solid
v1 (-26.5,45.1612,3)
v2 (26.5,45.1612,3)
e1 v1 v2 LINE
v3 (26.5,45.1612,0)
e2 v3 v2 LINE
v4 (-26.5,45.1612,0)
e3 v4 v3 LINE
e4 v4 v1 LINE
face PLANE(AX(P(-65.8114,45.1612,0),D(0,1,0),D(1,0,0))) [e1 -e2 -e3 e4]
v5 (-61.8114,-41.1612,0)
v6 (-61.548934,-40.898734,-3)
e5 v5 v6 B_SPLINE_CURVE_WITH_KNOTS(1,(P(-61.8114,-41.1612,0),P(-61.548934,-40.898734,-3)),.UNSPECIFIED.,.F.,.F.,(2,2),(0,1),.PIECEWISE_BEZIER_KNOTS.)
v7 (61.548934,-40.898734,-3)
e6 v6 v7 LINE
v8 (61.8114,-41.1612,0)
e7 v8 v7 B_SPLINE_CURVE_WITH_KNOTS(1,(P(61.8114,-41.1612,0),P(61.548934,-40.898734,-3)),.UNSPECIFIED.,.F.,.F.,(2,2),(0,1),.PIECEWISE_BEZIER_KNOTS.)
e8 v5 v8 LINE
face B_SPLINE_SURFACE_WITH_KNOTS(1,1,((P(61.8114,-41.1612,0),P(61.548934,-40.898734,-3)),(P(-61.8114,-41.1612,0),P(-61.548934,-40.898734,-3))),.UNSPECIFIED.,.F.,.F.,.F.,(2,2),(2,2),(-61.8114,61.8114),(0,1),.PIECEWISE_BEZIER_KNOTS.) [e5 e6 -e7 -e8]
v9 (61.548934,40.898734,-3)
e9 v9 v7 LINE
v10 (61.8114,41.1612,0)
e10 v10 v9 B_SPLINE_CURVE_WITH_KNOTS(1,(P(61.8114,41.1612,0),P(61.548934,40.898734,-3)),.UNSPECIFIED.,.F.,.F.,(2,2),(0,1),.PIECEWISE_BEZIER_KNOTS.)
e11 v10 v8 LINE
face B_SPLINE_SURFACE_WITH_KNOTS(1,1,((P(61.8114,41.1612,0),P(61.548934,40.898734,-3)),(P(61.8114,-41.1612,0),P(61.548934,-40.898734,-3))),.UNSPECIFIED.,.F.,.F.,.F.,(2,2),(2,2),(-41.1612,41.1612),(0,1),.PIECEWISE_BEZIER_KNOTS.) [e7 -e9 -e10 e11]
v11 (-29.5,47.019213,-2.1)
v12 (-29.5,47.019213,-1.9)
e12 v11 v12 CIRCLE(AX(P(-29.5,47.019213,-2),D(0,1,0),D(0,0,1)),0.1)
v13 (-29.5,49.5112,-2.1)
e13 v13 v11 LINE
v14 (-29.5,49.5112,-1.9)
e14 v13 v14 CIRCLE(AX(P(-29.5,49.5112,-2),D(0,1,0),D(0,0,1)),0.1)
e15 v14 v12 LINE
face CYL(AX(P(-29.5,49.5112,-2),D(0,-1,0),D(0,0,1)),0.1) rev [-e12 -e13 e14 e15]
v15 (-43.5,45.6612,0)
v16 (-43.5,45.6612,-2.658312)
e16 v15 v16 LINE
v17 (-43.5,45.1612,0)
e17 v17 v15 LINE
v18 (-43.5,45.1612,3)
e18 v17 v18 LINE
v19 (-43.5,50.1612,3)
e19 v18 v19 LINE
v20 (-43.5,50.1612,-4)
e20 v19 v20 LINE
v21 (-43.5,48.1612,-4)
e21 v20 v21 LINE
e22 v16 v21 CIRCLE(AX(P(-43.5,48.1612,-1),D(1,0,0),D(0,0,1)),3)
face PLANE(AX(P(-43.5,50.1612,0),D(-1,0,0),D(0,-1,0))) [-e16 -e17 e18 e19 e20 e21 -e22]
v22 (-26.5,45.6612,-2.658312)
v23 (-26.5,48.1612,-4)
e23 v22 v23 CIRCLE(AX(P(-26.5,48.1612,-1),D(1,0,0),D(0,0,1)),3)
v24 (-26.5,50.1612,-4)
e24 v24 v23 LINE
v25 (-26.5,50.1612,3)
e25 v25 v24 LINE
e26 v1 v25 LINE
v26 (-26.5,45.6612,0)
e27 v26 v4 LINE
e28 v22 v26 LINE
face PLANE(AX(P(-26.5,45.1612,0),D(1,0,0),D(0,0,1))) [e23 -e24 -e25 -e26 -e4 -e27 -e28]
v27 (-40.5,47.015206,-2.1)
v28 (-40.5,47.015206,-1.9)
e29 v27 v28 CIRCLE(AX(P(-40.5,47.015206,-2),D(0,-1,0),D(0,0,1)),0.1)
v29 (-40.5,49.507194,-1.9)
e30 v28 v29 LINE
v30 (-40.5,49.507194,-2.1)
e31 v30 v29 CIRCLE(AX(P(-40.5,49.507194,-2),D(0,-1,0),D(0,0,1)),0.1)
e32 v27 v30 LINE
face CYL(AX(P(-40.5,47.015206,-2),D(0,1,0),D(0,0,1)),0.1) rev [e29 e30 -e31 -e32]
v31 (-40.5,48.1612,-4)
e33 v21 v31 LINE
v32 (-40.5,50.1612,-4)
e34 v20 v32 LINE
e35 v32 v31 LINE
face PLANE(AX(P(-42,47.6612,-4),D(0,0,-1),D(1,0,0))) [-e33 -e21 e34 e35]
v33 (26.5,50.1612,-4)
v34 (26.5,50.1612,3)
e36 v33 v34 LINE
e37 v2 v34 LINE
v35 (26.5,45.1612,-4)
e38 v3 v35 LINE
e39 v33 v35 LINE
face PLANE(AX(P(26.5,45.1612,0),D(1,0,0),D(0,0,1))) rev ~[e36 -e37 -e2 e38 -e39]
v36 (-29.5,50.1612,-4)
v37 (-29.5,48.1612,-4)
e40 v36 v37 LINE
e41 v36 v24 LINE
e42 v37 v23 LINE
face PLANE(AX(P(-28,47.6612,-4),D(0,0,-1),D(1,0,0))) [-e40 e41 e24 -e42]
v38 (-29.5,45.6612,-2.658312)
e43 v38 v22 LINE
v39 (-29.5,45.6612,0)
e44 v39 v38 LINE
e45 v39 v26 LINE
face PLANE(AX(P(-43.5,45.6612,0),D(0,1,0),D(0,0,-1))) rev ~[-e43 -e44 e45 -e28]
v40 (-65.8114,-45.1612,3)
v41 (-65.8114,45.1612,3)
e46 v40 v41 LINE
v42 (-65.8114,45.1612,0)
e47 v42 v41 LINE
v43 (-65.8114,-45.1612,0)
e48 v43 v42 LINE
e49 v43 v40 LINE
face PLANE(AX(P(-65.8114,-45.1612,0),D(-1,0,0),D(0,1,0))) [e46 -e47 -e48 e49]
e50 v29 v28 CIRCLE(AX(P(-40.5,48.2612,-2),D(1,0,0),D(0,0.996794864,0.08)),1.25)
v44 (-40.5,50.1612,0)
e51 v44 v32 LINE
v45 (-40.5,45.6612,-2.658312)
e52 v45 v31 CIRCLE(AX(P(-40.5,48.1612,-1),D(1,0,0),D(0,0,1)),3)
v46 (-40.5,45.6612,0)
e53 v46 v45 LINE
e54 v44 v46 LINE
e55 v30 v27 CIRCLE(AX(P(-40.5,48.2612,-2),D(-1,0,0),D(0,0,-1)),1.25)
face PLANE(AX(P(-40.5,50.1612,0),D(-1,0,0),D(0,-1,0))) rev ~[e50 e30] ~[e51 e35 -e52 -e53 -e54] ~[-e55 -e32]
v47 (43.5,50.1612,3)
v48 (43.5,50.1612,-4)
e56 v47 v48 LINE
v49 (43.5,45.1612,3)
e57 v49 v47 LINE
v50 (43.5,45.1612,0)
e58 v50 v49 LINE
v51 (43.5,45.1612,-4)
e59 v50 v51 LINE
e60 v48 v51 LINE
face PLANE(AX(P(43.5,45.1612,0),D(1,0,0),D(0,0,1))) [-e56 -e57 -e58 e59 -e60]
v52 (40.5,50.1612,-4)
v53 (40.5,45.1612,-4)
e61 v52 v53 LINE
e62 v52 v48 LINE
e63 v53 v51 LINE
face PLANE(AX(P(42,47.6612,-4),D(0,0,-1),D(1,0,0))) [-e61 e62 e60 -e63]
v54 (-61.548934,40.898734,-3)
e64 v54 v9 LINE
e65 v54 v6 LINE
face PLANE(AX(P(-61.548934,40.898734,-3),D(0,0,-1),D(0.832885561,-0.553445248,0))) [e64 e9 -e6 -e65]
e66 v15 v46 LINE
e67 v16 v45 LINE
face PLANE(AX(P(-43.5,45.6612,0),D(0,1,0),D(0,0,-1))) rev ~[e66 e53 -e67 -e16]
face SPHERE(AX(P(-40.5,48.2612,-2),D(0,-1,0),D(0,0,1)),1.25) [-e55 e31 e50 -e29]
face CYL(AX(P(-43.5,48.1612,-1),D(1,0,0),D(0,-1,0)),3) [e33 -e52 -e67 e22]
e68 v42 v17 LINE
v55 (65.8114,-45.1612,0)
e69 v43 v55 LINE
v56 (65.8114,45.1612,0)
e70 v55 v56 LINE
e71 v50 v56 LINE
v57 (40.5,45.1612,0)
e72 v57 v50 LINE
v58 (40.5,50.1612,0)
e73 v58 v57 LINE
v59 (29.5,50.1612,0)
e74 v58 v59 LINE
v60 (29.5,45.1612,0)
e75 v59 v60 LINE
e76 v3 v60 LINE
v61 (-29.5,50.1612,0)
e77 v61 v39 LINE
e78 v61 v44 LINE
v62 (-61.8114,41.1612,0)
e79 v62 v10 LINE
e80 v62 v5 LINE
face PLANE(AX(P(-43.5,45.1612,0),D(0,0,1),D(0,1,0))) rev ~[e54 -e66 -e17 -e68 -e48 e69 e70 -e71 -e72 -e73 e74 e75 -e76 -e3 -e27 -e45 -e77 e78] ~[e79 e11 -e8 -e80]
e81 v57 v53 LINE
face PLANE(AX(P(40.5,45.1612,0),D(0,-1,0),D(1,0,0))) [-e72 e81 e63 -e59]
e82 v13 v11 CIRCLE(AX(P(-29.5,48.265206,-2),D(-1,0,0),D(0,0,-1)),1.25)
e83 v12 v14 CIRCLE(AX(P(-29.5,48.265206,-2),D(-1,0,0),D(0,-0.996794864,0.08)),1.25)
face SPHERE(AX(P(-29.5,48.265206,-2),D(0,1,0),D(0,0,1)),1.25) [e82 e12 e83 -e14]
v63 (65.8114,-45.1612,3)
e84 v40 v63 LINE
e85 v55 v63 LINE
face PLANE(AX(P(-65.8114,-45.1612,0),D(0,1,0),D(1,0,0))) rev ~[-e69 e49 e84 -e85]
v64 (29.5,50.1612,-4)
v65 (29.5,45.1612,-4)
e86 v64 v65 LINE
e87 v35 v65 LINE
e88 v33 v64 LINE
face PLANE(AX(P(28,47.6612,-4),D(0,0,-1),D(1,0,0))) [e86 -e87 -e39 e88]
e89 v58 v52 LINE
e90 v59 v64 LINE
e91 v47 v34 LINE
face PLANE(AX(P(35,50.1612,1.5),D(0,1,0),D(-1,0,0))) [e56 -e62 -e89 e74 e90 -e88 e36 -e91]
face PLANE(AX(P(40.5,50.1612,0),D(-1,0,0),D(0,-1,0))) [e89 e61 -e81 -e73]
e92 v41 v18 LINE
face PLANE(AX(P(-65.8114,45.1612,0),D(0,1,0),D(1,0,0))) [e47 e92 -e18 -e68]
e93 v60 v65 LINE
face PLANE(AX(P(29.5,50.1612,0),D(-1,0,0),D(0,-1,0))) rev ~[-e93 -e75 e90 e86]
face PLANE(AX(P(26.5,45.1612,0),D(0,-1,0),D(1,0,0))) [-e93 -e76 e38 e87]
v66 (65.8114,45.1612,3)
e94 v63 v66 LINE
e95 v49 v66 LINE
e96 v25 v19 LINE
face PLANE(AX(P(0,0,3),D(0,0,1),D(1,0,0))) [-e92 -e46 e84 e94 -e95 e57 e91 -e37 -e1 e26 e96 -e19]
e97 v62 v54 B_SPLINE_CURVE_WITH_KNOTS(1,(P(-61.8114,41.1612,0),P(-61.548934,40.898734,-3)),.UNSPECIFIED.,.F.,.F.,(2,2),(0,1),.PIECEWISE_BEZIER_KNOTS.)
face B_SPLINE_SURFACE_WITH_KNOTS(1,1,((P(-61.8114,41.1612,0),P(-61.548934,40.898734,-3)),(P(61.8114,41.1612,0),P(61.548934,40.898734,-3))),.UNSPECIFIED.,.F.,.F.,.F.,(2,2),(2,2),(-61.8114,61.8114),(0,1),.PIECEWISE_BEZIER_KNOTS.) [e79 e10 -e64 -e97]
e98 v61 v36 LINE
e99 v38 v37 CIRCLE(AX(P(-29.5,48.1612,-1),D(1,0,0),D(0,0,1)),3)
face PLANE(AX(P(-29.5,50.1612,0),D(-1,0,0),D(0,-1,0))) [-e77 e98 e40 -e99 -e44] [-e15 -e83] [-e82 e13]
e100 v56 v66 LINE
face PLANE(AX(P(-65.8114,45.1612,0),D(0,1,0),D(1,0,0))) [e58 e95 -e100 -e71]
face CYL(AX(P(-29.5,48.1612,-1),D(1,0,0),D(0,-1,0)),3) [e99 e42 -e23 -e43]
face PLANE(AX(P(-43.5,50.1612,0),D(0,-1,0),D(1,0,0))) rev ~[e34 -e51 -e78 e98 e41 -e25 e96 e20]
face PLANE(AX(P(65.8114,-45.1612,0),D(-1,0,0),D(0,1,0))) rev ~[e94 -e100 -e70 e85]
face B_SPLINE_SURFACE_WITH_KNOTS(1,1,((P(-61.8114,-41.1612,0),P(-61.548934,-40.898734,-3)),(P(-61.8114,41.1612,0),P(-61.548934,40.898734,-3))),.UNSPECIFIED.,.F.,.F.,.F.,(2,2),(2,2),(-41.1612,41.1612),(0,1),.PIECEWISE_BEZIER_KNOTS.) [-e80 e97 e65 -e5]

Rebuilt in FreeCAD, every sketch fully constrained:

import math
import FreeCAD as App
import Part
import Sketcher

V = App.Vector


def edges_at(feature, points):
    """Names of the edges that pass closest to the given points."""
    edges = feature.Shape.Edges
    near = lambda p: min(range(len(edges)), key=lambda i: edges[i].distToShape(Part.Vertex(*p))[0])
    return sorted({f"Edge{near(p) + 1}" for p in points})

doc = App.newDocument("Part")
body = doc.addObject("PartDesign::Body", "Body")

sketch1 = body.newObject("Sketcher::SketchObject", "Sketch")
sketch1.AttachmentSupport = (doc.getObject("XY_Plane"), [""])
sketch1.MapMode = "FlatFace"
sketch1.addGeometry([
    Part.LineSegment(V(-66, 45, 0), V(-66, -45, 0)),
    Part.LineSegment(V(-66, -45, 0), V(66, -45, 0)),
    Part.LineSegment(V(66, -45, 0), V(66, 45, 0)),
    Part.LineSegment(V(66, 45, 0), V(-66, 45, 0)),
], False)
sketch1.addConstraint([
    Sketcher.Constraint("Coincident", 0, 2, 1, 1),
    Sketcher.Constraint("Coincident", 1, 2, 2, 1),
    Sketcher.Constraint("Coincident", 2, 2, 3, 1),
    Sketcher.Constraint("Coincident", 3, 2, 0, 1),
    Sketcher.Constraint("Vertical", 0),
    Sketcher.Constraint("Horizontal", 1),
    Sketcher.Constraint("Vertical", 2),
    Sketcher.Constraint("Horizontal", 3),
    Sketcher.Constraint("Symmetric", 0, 2, 2, 2, -1, 1),
    Sketcher.Constraint("DistanceX", 1, 1, 1, 2, 131.6228),
    Sketcher.Constraint("DistanceY", 0, 2, 0, 1, 90.3224),
])
pad1 = body.newObject("PartDesign::Pad", "Pad")
pad1.Profile = sketch1
pad1.Length = 3

sketch2 = body.newObject("Sketcher::SketchObject", "Sketch001")
sketch2.AttachmentSupport = (doc.getObject("XY_Plane"), [""])
sketch2.MapMode = "FlatFace"
sketch2.addGeometry([
    Part.LineSegment(V(-62, -41, 0), V(-62, 41, 0)),
    Part.LineSegment(V(-62, 41, 0), V(62, 41, 0)),
    Part.LineSegment(V(62, 41, 0), V(62, -41, 0)),
    Part.LineSegment(V(62, -41, 0), V(-62, -41, 0)),
], False)
sketch2.addConstraint([
    Sketcher.Constraint("Coincident", 0, 2, 1, 1),
    Sketcher.Constraint("Coincident", 1, 2, 2, 1),
    Sketcher.Constraint("Coincident", 2, 2, 3, 1),
    Sketcher.Constraint("Coincident", 3, 2, 0, 1),
    Sketcher.Constraint("Vertical", 0),
    Sketcher.Constraint("Horizontal", 1),
    Sketcher.Constraint("Vertical", 2),
    Sketcher.Constraint("Horizontal", 3),
    Sketcher.Constraint("Symmetric", 0, 2, 2, 2, -1, 1),
    Sketcher.Constraint("DistanceX", 1, 1, 1, 2, 123.6228),
    Sketcher.Constraint("DistanceY", 0, 1, 0, 2, 82.3224),
])
pad2 = body.newObject("PartDesign::Pad", "Pad001")
pad2.Profile = sketch2
pad2.Length = 3
pad2.Reversed = True
pad2.TaperAngle = -5

sketch3 = body.newObject("Sketcher::SketchObject", "Sketch002")
sketch3.AttachmentSupport = (doc.getObject("XZ_Plane"), [""])
sketch3.MapMode = "FlatFace"
sketch3.AttachmentOffset = App.Placement(V(0, 0, -45.1612), App.Rotation())
sketch3.addGeometry([
    Part.LineSegment(V(-26.5, 3, 0), V(-26.5, 0, 0)),
    Part.LineSegment(V(-26.5, 0, 0), V(-43.5, 0, 0)),
    Part.LineSegment(V(-43.5, 0, 0), V(-43.5, 3, 0)),
    Part.LineSegment(V(-43.5, 3, 0), V(-26.5, 3, 0)),
    Part.LineSegment(V(43.5, 3, 0), V(43.5, 0, 0)),
    Part.LineSegment(V(43.5, 0, 0), V(26.5, 0, 0)),
    Part.LineSegment(V(26.5, 0, 0), V(26.5, 3, 0)),
    Part.LineSegment(V(26.5, 3, 0), V(43.5, 3, 0)),
], False)
sketch3.addConstraint([
    Sketcher.Constraint("Coincident", 0, 2, 1, 1),
    Sketcher.Constraint("Coincident", 1, 2, 2, 1),
    Sketcher.Constraint("Coincident", 2, 2, 3, 1),
    Sketcher.Constraint("Coincident", 3, 2, 0, 1),
    Sketcher.Constraint("Coincident", 4, 2, 5, 1),
    Sketcher.Constraint("Coincident", 5, 2, 6, 1),
    Sketcher.Constraint("Coincident", 6, 2, 7, 1),
    Sketcher.Constraint("Coincident", 7, 2, 4, 1),
    Sketcher.Constraint("Vertical", 0),
    Sketcher.Constraint("Horizontal", 1),
    Sketcher.Constraint("Vertical", 2),
    Sketcher.Constraint("Horizontal", 3),
    Sketcher.Constraint("Vertical", 4),
    Sketcher.Constraint("Horizontal", 5),
    Sketcher.Constraint("Vertical", 6),
    Sketcher.Constraint("Horizontal", 7),
    Sketcher.Constraint("Symmetric", 1, 2, 4, 2, -1, 1),
    Sketcher.Constraint("Symmetric", 0, 2, 5, 2, -2),
    Sketcher.Constraint("Horizontal", 3, 2, 6, 2),
    Sketcher.Constraint("DistanceX", 1, 2, 1, 1, 17.0),
    Sketcher.Constraint("DistanceY", 0, 2, 0, 1, 3.0),
    Sketcher.Constraint("DistanceX", 0, 2, 4, 2, 70.0),
])
pad3 = body.newObject("PartDesign::Pad", "Pad002")
pad3.Profile = sketch3
pad3.Length = 5
pad3.Reversed = True

sketch4 = body.newObject("Sketcher::SketchObject", "Sketch003")
sketch4.AttachmentSupport = (doc.getObject("XY_Plane"), [""])
sketch4.MapMode = "FlatFace"
sketch4.addGeometry([
    Part.LineSegment(V(-43.5, 45.2, 0), V(-43.5, 50.2, 0)),
    Part.LineSegment(V(-43.5, 50.2, 0), V(-40.5, 50.2, 0)),
    Part.LineSegment(V(-40.5, 50.2, 0), V(-40.5, 45.2, 0)),
    Part.LineSegment(V(-40.5, 45.2, 0), V(-43.5, 45.2, 0)),
    Part.LineSegment(V(-29.5, 45.2, 0), V(-29.5, 50.2, 0)),
    Part.LineSegment(V(-29.5, 50.2, 0), V(-26.5, 50.2, 0)),
    Part.LineSegment(V(-26.5, 50.2, 0), V(-26.5, 45.2, 0)),
    Part.LineSegment(V(-26.5, 45.2, 0), V(-29.5, 45.2, 0)),
    Part.LineSegment(V(26.5, 45.2, 0), V(26.5, 50.2, 0)),
    Part.LineSegment(V(26.5, 50.2, 0), V(29.5, 50.2, 0)),
    Part.LineSegment(V(29.5, 50.2, 0), V(29.5, 45.2, 0)),
    Part.LineSegment(V(29.5, 45.2, 0), V(26.5, 45.2, 0)),
    Part.LineSegment(V(40.5, 45.2, 0), V(40.5, 50.2, 0)),
    Part.LineSegment(V(40.5, 50.2, 0), V(43.5, 50.2, 0)),
    Part.LineSegment(V(43.5, 50.2, 0), V(43.5, 45.2, 0)),
    Part.LineSegment(V(43.5, 45.2, 0), V(40.5, 45.2, 0)),
], False)
sketch4.addConstraint([
    Sketcher.Constraint("Coincident", 0, 2, 1, 1),
    Sketcher.Constraint("Coincident", 1, 2, 2, 1),
    Sketcher.Constraint("Coincident", 2, 2, 3, 1),
    Sketcher.Constraint("Coincident", 3, 2, 0, 1),
    Sketcher.Constraint("Coincident", 4, 2, 5, 1),
    Sketcher.Constraint("Coincident", 5, 2, 6, 1),
    Sketcher.Constraint("Coincident", 6, 2, 7, 1),
    Sketcher.Constraint("Coincident", 7, 2, 4, 1),
    Sketcher.Constraint("Coincident", 8, 2, 9, 1),
    Sketcher.Constraint("Coincident", 9, 2, 10, 1),
    Sketcher.Constraint("Coincident", 10, 2, 11, 1),
    Sketcher.Constraint("Coincident", 11, 2, 8, 1),
    Sketcher.Constraint("Coincident", 12, 2, 13, 1),
    Sketcher.Constraint("Coincident", 13, 2, 14, 1),
    Sketcher.Constraint("Coincident", 14, 2, 15, 1),
    Sketcher.Constraint("Coincident", 15, 2, 12, 1),
    Sketcher.Constraint("Vertical", 0),
    Sketcher.Constraint("Horizontal", 1),
    Sketcher.Constraint("Vertical", 2),
    Sketcher.Constraint("Horizontal", 3),
    Sketcher.Constraint("Vertical", 4),
    Sketcher.Constraint("Horizontal", 5),
    Sketcher.Constraint("Vertical", 6),
    Sketcher.Constraint("Horizontal", 7),
    Sketcher.Constraint("Vertical", 8),
    Sketcher.Constraint("Horizontal", 9),
    Sketcher.Constraint("Vertical", 10),
    Sketcher.Constraint("Horizontal", 11),
    Sketcher.Constraint("Vertical", 12),
    Sketcher.Constraint("Horizontal", 13),
    Sketcher.Constraint("Vertical", 14),
    Sketcher.Constraint("Horizontal", 15),
    Sketcher.Constraint("Symmetric", 5, 2, 8, 2, -2),
    Sketcher.Constraint("Symmetric", 7, 2, 10, 2, -2),
    Sketcher.Constraint("Symmetric", 1, 2, 12, 2, -2),
    Sketcher.Constraint("Symmetric", 3, 2, 14, 2, -2),
    Sketcher.Constraint("Horizontal", 1, 2, 4, 2),
    Sketcher.Constraint("Horizontal", 3, 2, 6, 2),
    Sketcher.Constraint("Equal", 3, 5),
    Sketcher.Constraint("DistanceX", 1, 1, 1, 2, 3.0),
    Sketcher.Constraint("DistanceY", 0, 1, 0, 2, 5.0),
    Sketcher.Constraint("DistanceX", 1, 2, 4, 2, 11.0),
    Sketcher.Constraint("DistanceX", 5, 2, 8, 2, 53.0),
    Sketcher.Constraint("DistanceY", -1, 1, 0, 2, 50.1612),
])
pad4 = body.newObject("PartDesign::Pad", "Pad003")
pad4.Profile = sketch4
pad4.Length = 4
pad4.Reversed = True
doc.recompute()

fillet = body.newObject("PartDesign::Fillet", "Fillet")
fillet.Base = (pad4, edges_at(pad4, [(-42, 45.161, -4), (-28, 45.161, -4)]))
fillet.Radius = 3

sketch5 = body.newObject("Sketcher::SketchObject", "Sketch004")
sketch5.AttachmentSupport = (doc.getObject("YZ_Plane"), [""])
sketch5.MapMode = "FlatFace"
sketch5.AttachmentOffset = App.Placement(V(0, 0, -43.5), App.Rotation())
sketch5.addGeometry([
    Part.LineSegment(V(45.2, -1, 0), V(45.2, 0, 0)),
    Part.LineSegment(V(45.2, 0, 0), V(45.7, 0, 0)),
    Part.LineSegment(V(45.7, 0, 0), V(45.7, -2.7, 0)),
    Part.ArcOfCircle(Part.Circle(V(48.2, -1, 0), V(0, 0, 1), 3), math.radians(180), math.radians(214)),
], False)
sketch5.addConstraint([
    Sketcher.Constraint("Coincident", 0, 2, 1, 1),
    Sketcher.Constraint("Coincident", 1, 2, 2, 1),
    Sketcher.Constraint("Coincident", 2, 2, 3, 2),
    Sketcher.Constraint("Tangent", 3, 1, 0, 1),
    Sketcher.Constraint("Vertical", 0),
    Sketcher.Constraint("Horizontal", 1),
    Sketcher.Constraint("Vertical", 2),
    Sketcher.Constraint("PointOnObject", 0, 2, -1),
    Sketcher.Constraint("Radius", 3, 3.0),
    Sketcher.Constraint("DistanceY", 0, 1, 0, 2, 1.0),
    Sketcher.Constraint("DistanceX", 1, 1, 1, 2, 0.5),
    Sketcher.Constraint("DistanceX", -1, 1, 3, 3, 48.1612),
])
pocket1 = body.newObject("PartDesign::Pocket", "Pocket")
pocket1.Profile = sketch5
pocket1.Length = 25
pocket1.Reversed = True

sketch6 = body.newObject("Sketcher::SketchObject", "Sketch005")
sketch6.AttachmentSupport = (doc.getObject("YZ_Plane"), [""])
sketch6.MapMode = "FlatFace"
sketch6.AttachmentOffset = App.Placement(V(0, 0, -40.5), App.Rotation())
sketch6.addGeometry([
    Part.LineSegment(V(47, -1.9, 0), V(49.5, -1.9, 0)),
    Part.ArcOfCircle(Part.Circle(V(48.3, -2, 0), V(0, 0, 1), 1.2), math.radians(5), math.radians(175)),
], False)
sketch6.addGeometry(Part.LineSegment(V(49.5, -2, 0), V(47, -2, 0)), True)
sketch6.addConstraint([
    Sketcher.Constraint("Coincident", 0, 1, 1, 2),
    Sketcher.Constraint("Coincident", 1, 1, 0, 2),
    Sketcher.Constraint("Horizontal", 0),
    Sketcher.Constraint("Horizontal", 2),
    Sketcher.Constraint("Horizontal", 1, 3, 2, 1),
    Sketcher.Constraint("Vertical", 1, 1, 2, 1),
    Sketcher.Constraint("Vertical", 0, 1, 2, 2),
    Sketcher.Constraint("Radius", 1, 1.25),
    Sketcher.Constraint("DistanceY", 1, 3, -1, 1, 2.0),
    Sketcher.Constraint("DistanceY", 0, 1, -1, 1, 1.9),
    Sketcher.Constraint("DistanceX", -1, 1, 1, 3, 48.2612),
])
revolution = body.newObject("PartDesign::Revolution", "Revolution")
revolution.Profile = sketch6
revolution.ReferenceAxis = (sketch6, ["Axis0"])
revolution.Angle = 360

sketch7 = body.newObject("Sketcher::SketchObject", "Sketch006")
sketch7.AttachmentSupport = (doc.getObject("YZ_Plane"), [""])
sketch7.MapMode = "FlatFace"
sketch7.AttachmentOffset = App.Placement(V(0, 0, -29.5), App.Rotation())
sketch7.addGeometry([
    Part.LineSegment(V(49.5, -1.9, 0), V(47, -1.9, 0)),
    Part.ArcOfCircle(Part.Circle(V(48.3, -2, 0), V(0, 0, 1), 1.2), math.radians(5), math.radians(175)),
], False)
sketch7.addGeometry(Part.LineSegment(V(47, -2, 0), V(49.5, -2, 0)), True)
sketch7.addConstraint([
    Sketcher.Constraint("Coincident", 0, 1, 1, 1),
    Sketcher.Constraint("Coincident", 1, 2, 0, 2),
    Sketcher.Constraint("Horizontal", 0),
    Sketcher.Constraint("Horizontal", 2),
    Sketcher.Constraint("Horizontal", 1, 3, 2, 1),
    Sketcher.Constraint("Vertical", 1, 2, 2, 1),
    Sketcher.Constraint("Vertical", 0, 1, 2, 2),
    Sketcher.Constraint("Radius", 1, 1.25),
    Sketcher.Constraint("DistanceY", 1, 3, -1, 1, 2.0),
    Sketcher.Constraint("DistanceY", 0, 1, -1, 1, 1.9),
    Sketcher.Constraint("DistanceX", -1, 1, 0, 1, 49.5112),
])
revolution2 = body.newObject("PartDesign::Revolution", "Revolution001")
revolution2.Profile = sketch7
revolution2.ReferenceAxis = (sketch7, ["Axis0"])
revolution2.Angle = 360

doc.recompute()
